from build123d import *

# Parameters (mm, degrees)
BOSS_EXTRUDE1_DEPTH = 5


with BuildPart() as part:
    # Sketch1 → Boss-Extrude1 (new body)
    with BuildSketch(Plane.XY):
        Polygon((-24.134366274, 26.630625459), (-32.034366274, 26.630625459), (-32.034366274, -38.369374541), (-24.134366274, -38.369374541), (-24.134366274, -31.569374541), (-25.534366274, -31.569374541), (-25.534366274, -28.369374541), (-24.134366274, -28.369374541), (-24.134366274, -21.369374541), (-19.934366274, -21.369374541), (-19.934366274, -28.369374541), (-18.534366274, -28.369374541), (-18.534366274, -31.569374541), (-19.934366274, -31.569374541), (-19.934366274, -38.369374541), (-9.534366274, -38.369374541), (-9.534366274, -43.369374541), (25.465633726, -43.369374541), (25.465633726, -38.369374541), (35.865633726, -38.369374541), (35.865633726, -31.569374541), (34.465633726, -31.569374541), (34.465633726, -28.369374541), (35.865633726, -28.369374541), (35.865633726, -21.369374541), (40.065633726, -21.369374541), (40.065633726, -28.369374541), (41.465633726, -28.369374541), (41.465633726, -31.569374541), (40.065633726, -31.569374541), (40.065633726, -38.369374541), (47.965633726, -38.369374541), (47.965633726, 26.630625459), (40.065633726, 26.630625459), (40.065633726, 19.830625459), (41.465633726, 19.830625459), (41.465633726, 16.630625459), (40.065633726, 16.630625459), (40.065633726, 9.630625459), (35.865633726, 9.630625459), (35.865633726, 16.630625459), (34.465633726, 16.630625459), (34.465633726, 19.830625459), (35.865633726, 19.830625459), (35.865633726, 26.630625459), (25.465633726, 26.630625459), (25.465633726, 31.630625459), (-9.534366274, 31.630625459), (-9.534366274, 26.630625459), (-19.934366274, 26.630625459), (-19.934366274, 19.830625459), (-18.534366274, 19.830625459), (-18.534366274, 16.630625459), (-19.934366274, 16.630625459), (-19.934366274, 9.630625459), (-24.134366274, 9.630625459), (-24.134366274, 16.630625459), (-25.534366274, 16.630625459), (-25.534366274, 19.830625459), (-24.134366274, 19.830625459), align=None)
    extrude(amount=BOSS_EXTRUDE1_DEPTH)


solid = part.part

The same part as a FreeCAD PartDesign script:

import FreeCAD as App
import Part
import Sketcher

doc = App.newDocument("Part")
body = doc.addObject("PartDesign::Body", "Body")

# Sketch on XY plane
sketch1 = doc.addObject("Sketcher::SketchObject", "Sketch")
body.addObject(sketch1)
sketch1.AttachmentSupport = (doc.XY_Plane, [""])
sketch1.MapMode = "FlatFace"
sketch1.addGeometry([
    Part.LineSegment(App.Vector(-24.134366, 26.630625, 0), App.Vector(-32.034366, 26.630625, 0)),  # 0
    Part.LineSegment(App.Vector(-32.034366, 26.630625, 0), App.Vector(-32.034366, -38.369375, 0)),  # 1
    Part.LineSegment(App.Vector(-32.034366, -38.369375, 0), App.Vector(-24.134366, -38.369375, 0)),  # 2
    Part.LineSegment(App.Vector(-24.134366, -38.369375, 0), App.Vector(-24.134366, -31.569375, 0)),  # 3
    Part.LineSegment(App.Vector(-24.134366, -31.569375, 0), App.Vector(-25.534366, -31.569375, 0)),  # 4
    Part.LineSegment(App.Vector(-25.534366, -31.569375, 0), App.Vector(-25.534366, -28.369375, 0)),  # 5
    Part.LineSegment(App.Vector(-25.534366, -28.369375, 0), App.Vector(-24.134366, -28.369375, 0)),  # 6
    Part.LineSegment(App.Vector(-24.134366, -28.369375, 0), App.Vector(-24.134366, -21.369375, 0)),  # 7
    Part.LineSegment(App.Vector(-24.134366, -21.369375, 0), App.Vector(-19.934366, -21.369375, 0)),  # 8
    Part.LineSegment(App.Vector(-19.934366, -21.369375, 0), App.Vector(-19.934366, -28.369375, 0)),  # 9
    Part.LineSegment(App.Vector(-19.934366, -28.369375, 0), App.Vector(-18.534366, -28.369375, 0)),  # 10
    Part.LineSegment(App.Vector(-18.534366, -28.369375, 0), App.Vector(-18.534366, -31.569375, 0)),  # 11
    Part.LineSegment(App.Vector(-18.534366, -31.569375, 0), App.Vector(-19.934366, -31.569375, 0)),  # 12
    Part.LineSegment(App.Vector(-19.934366, -31.569375, 0), App.Vector(-19.934366, -38.369375, 0)),  # 13
    Part.LineSegment(App.Vector(-19.934366, -38.369375, 0), App.Vector(-9.534366, -38.369375, 0)),  # 14
    Part.LineSegment(App.Vector(-9.534366, -38.369375, 0), App.Vector(-9.534366, -43.369375, 0)),  # 15
    Part.LineSegment(App.Vector(-9.534366, -43.369375, 0), App.Vector(25.465634, -43.369375, 0)),  # 16
    Part.LineSegment(App.Vector(25.465634, -43.369375, 0), App.Vector(25.465634, -38.369375, 0)),  # 17
    Part.LineSegment(App.Vector(25.465634, -38.369375, 0), App.Vector(35.865634, -38.369375, 0)),  # 18
    Part.LineSegment(App.Vector(35.865634, -38.369375, 0), App.Vector(35.865634, -31.569375, 0)),  # 19
    Part.LineSegment(App.Vector(35.865634, -31.569375, 0), App.Vector(34.465634, -31.569375, 0)),  # 20
    Part.LineSegment(App.Vector(34.465634, -31.569375, 0), App.Vector(34.465634, -28.369375, 0)),  # 21
    Part.LineSegment(App.Vector(34.465634, -28.369375, 0), App.Vector(35.865634, -28.369375, 0)),  # 22
    Part.LineSegment(App.Vector(35.865634, -28.369375, 0), App.Vector(35.865634, -21.369375, 0)),  # 23
    Part.LineSegment(App.Vector(35.865634, -21.369375, 0), App.Vector(40.065634, -21.369375, 0)),  # 24
    Part.LineSegment(App.Vector(40.065634, -21.369375, 0), App.Vector(40.065634, -28.369375, 0)),  # 25
    Part.LineSegment(App.Vector(40.065634, -28.369375, 0), App.Vector(41.465634, -28.369375, 0)),  # 26
    Part.LineSegment(App.Vector(41.465634, -28.369375, 0), App.Vector(41.465634, -31.569375, 0)),  # 27
    Part.LineSegment(App.Vector(41.465634, -31.569375, 0), App.Vector(40.065634, -31.569375, 0)),  # 28
    Part.LineSegment(App.Vector(40.065634, -31.569375, 0), App.Vector(40.065634, -38.369375, 0)),  # 29
    Part.LineSegment(App.Vector(40.065634, -38.369375, 0), App.Vector(47.965634, -38.369375, 0)),  # 30
    Part.LineSegment(App.Vector(47.965634, -38.369375, 0), App.Vector(47.965634, 26.630625, 0)),  # 31
    Part.LineSegment(App.Vector(47.965634, 26.630625, 0), App.Vector(40.065634, 26.630625, 0)),  # 32
    Part.LineSegment(App.Vector(40.065634, 26.630625, 0), App.Vector(40.065634, 19.830625, 0)),  # 33
    Part.LineSegment(App.Vector(40.065634, 19.830625, 0), App.Vector(41.465634, 19.830625, 0)),  # 34
    Part.LineSegment(App.Vector(41.465634, 19.830625, 0), App.Vector(41.465634, 16.630625, 0)),  # 35
    Part.LineSegment(App.Vector(41.465634, 16.630625, 0), App.Vector(40.065634, 16.630625, 0)),  # 36
    Part.LineSegment(App.Vector(40.065634, 16.630625, 0), App.Vector(40.065634, 9.630625, 0)),  # 37
    Part.LineSegment(App.Vector(40.065634, 9.630625, 0), App.Vector(35.865634, 9.630625, 0)),  # 38
    Part.LineSegment(App.Vector(35.865634, 9.630625, 0), App.Vector(35.865634, 16.630625, 0)),  # 39
    Part.LineSegment(App.Vector(35.865634, 16.630625, 0), App.Vector(34.465634, 16.630625, 0)),  # 40
    Part.LineSegment(App.Vector(34.465634, 16.630625, 0), App.Vector(34.465634, 19.830625, 0)),  # 41
    Part.LineSegment(App.Vector(34.465634, 19.830625, 0), App.Vector(35.865634, 19.830625, 0)),  # 42
    Part.LineSegment(App.Vector(35.865634, 19.830625, 0), App.Vector(35.865634, 26.630625, 0)),  # 43
    Part.LineSegment(App.Vector(35.865634, 26.630625, 0), App.Vector(25.465634, 26.630625, 0)),  # 44
    Part.LineSegment(App.Vector(25.465634, 26.630625, 0), App.Vector(25.465634, 31.630625, 0)),  # 45
    Part.LineSegment(App.Vector(25.465634, 31.630625, 0), App.Vector(-9.534366, 31.630625, 0)),  # 46
    Part.LineSegment(App.Vector(-9.534366, 31.630625, 0), App.Vector(-9.534366, 26.630625, 0)),  # 47
    Part.LineSegment(App.Vector(-9.534366, 26.630625, 0), App.Vector(-19.934366, 26.630625, 0)),  # 48
    Part.LineSegment(App.Vector(-19.934366, 26.630625, 0), App.Vector(-19.934366, 19.830625, 0)),  # 49
    Part.LineSegment(App.Vector(-19.934366, 19.830625, 0), App.Vector(-18.534366, 19.830625, 0)),  # 50
    Part.LineSegment(App.Vector(-18.534366, 19.830625, 0), App.Vector(-18.534366, 16.630625, 0)),  # 51
    Part.LineSegment(App.Vector(-18.534366, 16.630625, 0), App.Vector(-19.934366, 16.630625, 0)),  # 52
    Part.LineSegment(App.Vector(-19.934366, 16.630625, 0), App.Vector(-19.934366, 9.630625, 0)),  # 53
    Part.LineSegment(App.Vector(-19.934366, 9.630625, 0), App.Vector(-24.134366, 9.630625, 0)),  # 54
    Part.LineSegment(App.Vector(-24.134366, 9.630625, 0), App.Vector(-24.134366, 16.630625, 0)),  # 55
    Part.LineSegment(App.Vector(-24.134366, 16.630625, 0), App.Vector(-25.534366, 16.630625, 0)),  # 56
    Part.LineSegment(App.Vector(-25.534366, 16.630625, 0), App.Vector(-25.534366, 19.830625, 0)),  # 57
    Part.LineSegment(App.Vector(-25.534366, 19.830625, 0), App.Vector(-24.134366, 19.830625, 0)),  # 58
    Part.LineSegment(App.Vector(-24.134366, 19.830625, 0), App.Vector(-24.134366, 26.630625, 0)),  # 59
], False)
sketch1.addConstraint([
    Sketcher.Constraint("Coincident", 0, 2, 1, 1),
    Sketcher.Constraint("Coincident", 1, 2, 2, 1),
    Sketcher.Constraint("Coincident", 2, 2, 3, 1),
    Sketcher.Constraint("Coincident", 3, 2, 4, 1),
    Sketcher.Constraint("Coincident", 4, 2, 5, 1),
    Sketcher.Constraint("Coincident", 5, 2, 6, 1),
    Sketcher.Constraint("Coincident", 6, 2, 7, 1),
    Sketcher.Constraint("Coincident", 7, 2, 8, 1),
    Sketcher.Constraint("Coincident", 8, 2, 9, 1),
    Sketcher.Constraint("Coincident", 9, 2, 10, 1),
    Sketcher.Constraint("Coincident", 10, 2, 11, 1),
    Sketcher.Constraint("Coincident", 11, 2, 12, 1),
    Sketcher.Constraint("Coincident", 12, 2, 13, 1),
    Sketcher.Constraint("Coincident", 13, 2, 14, 1),
    Sketcher.Constraint("Coincident", 14, 2, 15, 1),
    Sketcher.Constraint("Coincident", 15, 2, 16, 1),
    Sketcher.Constraint("Coincident", 16, 2, 17, 1),
    Sketcher.Constraint("Coincident", 17, 2, 18, 1),
    Sketcher.Constraint("Coincident", 18, 2, 19, 1),
    Sketcher.Constraint("Coincident", 19, 2, 20, 1),
    Sketcher.Constraint("Coincident", 20, 2, 21, 1),
    Sketcher.Constraint("Coincident", 21, 2, 22, 1),
    Sketcher.Constraint("Coincident", 22, 2, 23, 1),
    Sketcher.Constraint("Coincident", 23, 2, 24, 1),
    Sketcher.Constraint("Coincident", 24, 2, 25, 1),
    Sketcher.Constraint("Coincident", 25, 2, 26, 1),
    Sketcher.Constraint("Coincident", 26, 2, 27, 1),
    Sketcher.Constraint("Coincident", 27, 2, 28, 1),
    Sketcher.Constraint("Coincident", 28, 2, 29, 1),
    Sketcher.Constraint("Coincident", 29, 2, 30, 1),
    Sketcher.Constraint("Coincident", 30, 2, 31, 1),
    Sketcher.Constraint("Coincident", 31, 2, 32, 1),
    Sketcher.Constraint("Coincident", 32, 2, 33, 1),
    Sketcher.Constraint("Coincident", 33, 2, 34, 1),
    Sketcher.Constraint("Coincident", 34, 2, 35, 1),
    Sketcher.Constraint("Coincident", 35, 2, 36, 1),
    Sketcher.Constraint("Coincident", 36, 2, 37, 1),
    Sketcher.Constraint("Coincident", 37, 2, 38, 1),
    Sketcher.Constraint("Coincident", 38, 2, 39, 1),
    Sketcher.Constraint("Coincident", 39, 2, 40, 1),
    Sketcher.Constraint("Coincident", 40, 2, 41, 1),
    Sketcher.Constraint("Coincident", 41, 2, 42, 1),
    Sketcher.Constraint("Coincident", 42, 2, 43, 1),
    Sketcher.Constraint("Coincident", 43, 2, 44, 1),
    Sketcher.Constraint("Coincident", 44, 2, 45, 1),
    Sketcher.Constraint("Coincident", 45, 2, 46, 1),
    Sketcher.Constraint("Coincident", 46, 2, 47, 1),
    Sketcher.Constraint("Coincident", 47, 2, 48, 1),
    Sketcher.Constraint("Coincident", 48, 2, 49, 1),
    Sketcher.Constraint("Coincident", 49, 2, 50, 1),
    Sketcher.Constraint("Coincident", 50, 2, 51, 1),
    Sketcher.Constraint("Coincident", 51, 2, 52, 1),
    Sketcher.Constraint("Coincident", 52, 2, 53, 1),
    Sketcher.Constraint("Coincident", 53, 2, 54, 1),
    Sketcher.Constraint("Coincident", 54, 2, 55, 1),
    Sketcher.Constraint("Coincident", 55, 2, 56, 1),
    Sketcher.Constraint("Coincident", 56, 2, 57, 1),
    Sketcher.Constraint("Coincident", 57, 2, 58, 1),
    Sketcher.Constraint("Coincident", 58, 2, 59, 1),
    Sketcher.Constraint("Coincident", 59, 2, 0, 1),
    Sketcher.Constraint("Horizontal", 0),
    Sketcher.Constraint("Vertical", 1),
    Sketcher.Constraint("Horizontal", 2),
    Sketcher.Constraint("Vertical", 3),
    Sketcher.Constraint("Horizontal", 4),
    Sketcher.Constraint("Vertical", 5),
    Sketcher.Constraint("Horizontal", 6),
    Sketcher.Constraint("Vertical", 7),
    Sketcher.Constraint("Horizontal", 8),
    Sketcher.Constraint("Vertical", 9),
    Sketcher.Constraint("Horizontal", 10),
    Sketcher.Constraint("Vertical", 11),
    Sketcher.Constraint("Horizontal", 12),
    Sketcher.Constraint("Vertical", 13),
    Sketcher.Constraint("Horizontal", 14),
    Sketcher.Constraint("Vertical", 15),
    Sketcher.Constraint("Horizontal", 16),
    Sketcher.Constraint("Vertical", 17),
    Sketcher.Constraint("Horizontal", 18),
    Sketcher.Constraint("Vertical", 19),
    Sketcher.Constraint("Horizontal", 20),
    Sketcher.Constraint("Vertical", 21),
    Sketcher.Constraint("Horizontal", 22),
    Sketcher.Constraint("Vertical", 23),
    Sketcher.Constraint("Horizontal", 24),
    Sketcher.Constraint("Vertical", 25),
    Sketcher.Constraint("Horizontal", 26),
    Sketcher.Constraint("Vertical", 27),
    Sketcher.Constraint("Horizontal", 28),
    Sketcher.Constraint("Vertical", 29),
    Sketcher.Constraint("Horizontal", 30),
    Sketcher.Constraint("Vertical", 31),
    Sketcher.Constraint("Horizontal", 32),
    Sketcher.Constraint("Vertical", 33),
    Sketcher.Constraint("Horizontal", 34),
    Sketcher.Constraint("Vertical", 35),
    Sketcher.Constraint("Horizontal", 36),
    Sketcher.Constraint("Vertical", 37),
    Sketcher.Constraint("Horizontal", 38),
    Sketcher.Constraint("Vertical", 39),
    Sketcher.Constraint("Horizontal", 40),
    Sketcher.Constraint("Vertical", 41),
    Sketcher.Constraint("Horizontal", 42),
    Sketcher.Constraint("Vertical", 43),
    Sketcher.Constraint("Horizontal", 44),
    Sketcher.Constraint("Vertical", 45),
    Sketcher.Constraint("Horizontal", 46),
    Sketcher.Constraint("Vertical", 47),
    Sketcher.Constraint("Horizontal", 48),
    Sketcher.Constraint("Vertical", 49),
    Sketcher.Constraint("Horizontal", 50),
    Sketcher.Constraint("Vertical", 51),
    Sketcher.Constraint("Horizontal", 52),
    Sketcher.Constraint("Vertical", 53),
    Sketcher.Constraint("Horizontal", 54),
    Sketcher.Constraint("Vertical", 55),
    Sketcher.Constraint("Horizontal", 56),
    Sketcher.Constraint("Vertical", 57),
    Sketcher.Constraint("Horizontal", 58),
    Sketcher.Constraint("Vertical", 59),
    Sketcher.Constraint("Horizontal", 6, 2, 9, 2),
    Sketcher.Constraint("Horizontal", 4, 2, 11, 2),
    Sketcher.Constraint("Horizontal", 2, 2, 13, 2),
    Sketcher.Constraint("Horizontal", 14, 2, 17, 2),
    Sketcher.Constraint("Horizontal", 12, 2, 19, 2),
    Sketcher.Constraint("Horizontal", 10, 2, 21, 2),
    Sketcher.Constraint("Horizontal", 8, 2, 23, 2),
    Sketcher.Constraint("Horizontal", 22, 2, 25, 2),
    Sketcher.Constraint("Horizontal", 20, 2, 27, 2),
    Sketcher.Constraint("Horizontal", 18, 2, 29, 2),
    Sketcher.Constraint("Horizontal", 0, 2, 31, 2),
    Sketcher.Constraint("Horizontal", 36, 2, 39, 2),
    Sketcher.Constraint("Horizontal", 34, 2, 41, 2),
    Sketcher.Constraint("Horizontal", 32, 2, 43, 2),
    Sketcher.Constraint("Horizontal", 44, 2, 47, 2),
    Sketcher.Constraint("Horizontal", 42, 2, 49, 2),
    Sketcher.Constraint("Horizontal", 40, 2, 51, 2),
    Sketcher.Constraint("Horizontal", 38, 2, 53, 2),
    Sketcher.Constraint("Horizontal", 52, 2, 55, 2),
    Sketcher.Constraint("Horizontal", 50, 2, 57, 2),
    Sketcher.Constraint("Vertical", 3, 2, 6, 2),
    Sketcher.Constraint("Vertical", 9, 2, 12, 2),
    Sketcher.Constraint("Vertical", 19, 2, 22, 2),
    Sketcher.Constraint("Vertical", 25, 2, 28, 2),
    Sketcher.Constraint("Vertical", 29, 2, 32, 2),
    Sketcher.Constraint("Vertical", 27, 2, 34, 2),
    Sketcher.Constraint("Vertical", 33, 2, 36, 2),
    Sketcher.Constraint("Vertical", 23, 2, 38, 2),
    Sketcher.Constraint("Vertical", 21, 2, 40, 2),
    Sketcher.Constraint("Vertical", 39, 2, 42, 2),
    Sketcher.Constraint("Vertical", 17, 2, 44, 2),
    Sketcher.Constraint("Vertical", 15, 2, 46, 2),
    Sketcher.Constraint("Vertical", 13, 2, 48, 2),
    Sketcher.Constraint("Vertical", 11, 2, 50, 2),
    Sketcher.Constraint("Vertical", 49, 2, 52, 2),
    Sketcher.Constraint("Vertical", 7, 2, 54, 2),
    Sketcher.Constraint("Vertical", 5, 2, 56, 2),
    Sketcher.Constraint("Vertical", 55, 2, 58, 2),
    Sketcher.Constraint("Equal", 6, 10),
    Sketcher.Constraint("Equal", 14, 18),
    Sketcher.Constraint("Equal", 12, 20),
    Sketcher.Constraint("Equal", 8, 24),
    Sketcher.Constraint("Equal", 22, 26),
    Sketcher.Constraint("Equal", 2, 30),
    Sketcher.Constraint("Equal", 29, 33),
    Sketcher.Constraint("Equal", 27, 35),
    Sketcher.Constraint("Equal", 25, 37),
    Sketcher.Constraint("Equal", 17, 45),
    Sketcher.Constraint("DistanceX", 16, 1, 16, 2, 35.0),
    Sketcher.Constraint("DistanceY", 1, 2, 1, 1, 65.0),
    Sketcher.Constraint("DistanceY", 7, 1, 7, 2, 7.0),
    Sketcher.Constraint("DistanceY", 15, 2, 15, 1, 5.0),
    Sketcher.Constraint("DistanceX", 0, 2, 0, 1, 7.9),
    Sketcher.Constraint("DistanceX", 4, 2, 4, 1, 1.4),
    Sketcher.Constraint("DistanceX", 8, 1, 8, 2, 4.2),
    Sketcher.Constraint("DistanceX", 14, 1, 14, 2, 10.4),
    Sketcher.Constraint("DistanceY", 3, 1, 3, 2, 6.8),
    Sketcher.Constraint("DistanceY", 5, 1, 5, 2, 3.2),
    Sketcher.Constraint("DistanceX", 0, 2, -1, 1, 32.034366),
    Sketcher.Constraint("DistanceY", -1, 1, 0, 2, 26.630625),
])
pad1 = doc.addObject("PartDesign::Pad", "Pad")
body.addObject(pad1)
pad1.Profile = sketch1
pad1.Length = 5

doc.recompute()
